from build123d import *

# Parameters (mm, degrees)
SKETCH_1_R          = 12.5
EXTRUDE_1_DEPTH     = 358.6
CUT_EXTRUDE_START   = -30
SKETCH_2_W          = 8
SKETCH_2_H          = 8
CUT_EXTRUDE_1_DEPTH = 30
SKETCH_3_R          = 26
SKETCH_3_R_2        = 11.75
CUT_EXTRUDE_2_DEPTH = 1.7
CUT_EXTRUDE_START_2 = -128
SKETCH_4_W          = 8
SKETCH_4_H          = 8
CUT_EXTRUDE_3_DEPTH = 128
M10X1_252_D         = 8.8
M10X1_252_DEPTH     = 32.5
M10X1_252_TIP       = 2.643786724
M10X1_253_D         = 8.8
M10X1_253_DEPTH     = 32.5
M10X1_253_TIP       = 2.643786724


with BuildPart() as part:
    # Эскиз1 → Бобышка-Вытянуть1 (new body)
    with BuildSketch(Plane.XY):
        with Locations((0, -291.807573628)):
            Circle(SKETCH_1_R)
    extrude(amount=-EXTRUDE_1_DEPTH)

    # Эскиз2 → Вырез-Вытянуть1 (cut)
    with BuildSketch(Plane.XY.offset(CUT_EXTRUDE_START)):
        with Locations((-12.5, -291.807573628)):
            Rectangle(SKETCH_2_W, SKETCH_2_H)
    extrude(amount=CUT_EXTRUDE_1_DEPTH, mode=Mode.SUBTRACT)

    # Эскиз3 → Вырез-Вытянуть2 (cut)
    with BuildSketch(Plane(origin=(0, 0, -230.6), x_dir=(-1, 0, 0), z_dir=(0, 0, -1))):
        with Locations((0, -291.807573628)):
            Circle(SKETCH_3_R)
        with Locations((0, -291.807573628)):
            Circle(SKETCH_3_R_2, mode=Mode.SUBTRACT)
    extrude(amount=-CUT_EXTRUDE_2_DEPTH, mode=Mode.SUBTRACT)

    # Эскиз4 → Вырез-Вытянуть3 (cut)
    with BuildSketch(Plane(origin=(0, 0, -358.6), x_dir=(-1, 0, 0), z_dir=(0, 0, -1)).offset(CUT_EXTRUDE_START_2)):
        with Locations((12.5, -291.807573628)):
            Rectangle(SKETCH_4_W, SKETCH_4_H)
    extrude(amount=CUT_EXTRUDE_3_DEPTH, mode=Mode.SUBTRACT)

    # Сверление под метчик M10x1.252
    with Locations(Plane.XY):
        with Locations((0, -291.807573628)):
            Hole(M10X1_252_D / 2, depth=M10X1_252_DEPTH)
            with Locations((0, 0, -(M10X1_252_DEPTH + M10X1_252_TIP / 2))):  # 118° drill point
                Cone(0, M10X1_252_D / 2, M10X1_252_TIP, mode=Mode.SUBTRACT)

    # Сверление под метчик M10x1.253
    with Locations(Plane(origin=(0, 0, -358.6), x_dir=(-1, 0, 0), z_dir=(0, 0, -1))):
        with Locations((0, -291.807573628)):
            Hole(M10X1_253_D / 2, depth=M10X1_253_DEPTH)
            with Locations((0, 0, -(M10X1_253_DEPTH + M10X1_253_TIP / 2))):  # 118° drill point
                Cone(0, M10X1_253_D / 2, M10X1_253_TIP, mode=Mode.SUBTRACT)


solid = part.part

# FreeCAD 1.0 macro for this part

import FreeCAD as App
import Part
import Sketcher
from FreeCAD import Vector
Q = App.Units.Quantity


def add_polygon(sketch, points):
    """Adds a closed chain of lines whose ends are joined by coincident constraints."""
    first, n = sketch.GeometryCount, len(points)
    for a, b in zip(points, points[1:] + points[:1]):
        sketch.addGeometry(Part.LineSegment(App.Vector(*a, 0), App.Vector(*b, 0)), False)
    for i in range(n):
        sketch.addConstraint(Sketcher.Constraint("Coincident", first + i, 2, first + (i + 1) % n, 1))

doc = App.newDocument("Part")
body = doc.addObject("PartDesign::Body", "Body")

# Sketch on XY plane
sketch1 = body.newObject("Sketcher::SketchObject", "Sketch")
sketch1.AttachmentSupport = (doc.getObject("XY_Plane"), [""])
sketch1.MapMode = "FlatFace"
sketch1.addGeometry(Part.Circle(Vector(0, -292, 0), Vector(0, 0, 1), 12), False)
sketch1.addConstraint([
    Sketcher.Constraint("PointOnObject", 0, 3, -2),
    Sketcher.Constraint("Diameter", 0, Q("25 mm")),
    Sketcher.Constraint("DistanceY", 0, 3, -1, 1, Q("291.807574 mm")),
])
pad1 = body.newObject("PartDesign::Pad", "Pad")
pad1.Profile = sketch1
pad1.Length = 358.6
pad1.Reversed = True

# Sketch on XY plane
sketch2 = body.newObject("Sketcher::SketchObject", "Sketch001")
sketch2.AttachmentSupport = (doc.getObject("XY_Plane"), [""])
sketch2.MapMode = "FlatFace"
sketch2.AttachmentOffset = App.Placement(Vector(0, 0, -30), App.Rotation())
add_polygon(sketch2, [(-16, -288), (-16, -296), (-8, -296), (-8, -288)])  # lines 0-3
sketch2.addConstraint([
    Sketcher.Constraint("Vertical", 0),
    Sketcher.Constraint("Horizontal", 1),
    Sketcher.Constraint("Vertical", 2),
    Sketcher.Constraint("Horizontal", 3),
    Sketcher.Constraint("Equal", 3, 0),
    Sketcher.Constraint("DistanceX", 1, 1, 1, 2, Q("8 mm")),
    Sketcher.Constraint("DistanceX", 0, 2, -1, 1, Q("16.5 mm")),
    Sketcher.Constraint("DistanceY", 0, 2, -1, 1, Q("295.807574 mm")),
])
pocket1 = body.newObject("PartDesign::Pocket", "Pocket")
pocket1.Profile = sketch2
pocket1.Length = 30
pocket1.Reversed = True

# Sketch on XY plane
sketch3 = body.newObject("Sketcher::SketchObject", "Sketch002")
sketch3.AttachmentSupport = (doc.getObject("XY_Plane"), [""])
sketch3.MapMode = "FlatFace"
sketch3.AttachmentOffset = App.Placement(Vector(0, 0, -230.6), App.Rotation())
sketch3.addGeometry([
    Part.Circle(Vector(0, -292, 0), Vector(0, 0, 1), 26),
    Part.Circle(Vector(0, -292, 0), Vector(0, 0, 1), 12),
], False)
sketch3.addConstraint([
    Sketcher.Constraint("Coincident", 1, 3, 0, 3),
    Sketcher.Constraint("PointOnObject", 0, 3, -2),
    Sketcher.Constraint("Diameter", 0, Q("52 mm")),
    Sketcher.Constraint("Diameter", 1, Q("23.5 mm")),
    Sketcher.Constraint("DistanceY", 0, 3, -1, 1, Q("291.807574 mm")),
])
pocket2 = body.newObject("PartDesign::Pocket", "Pocket001")
pocket2.Profile = sketch3
pocket2.Length = 1.7
pocket2.Reversed = True

# Sketch on XY plane
sketch4 = body.newObject("Sketcher::SketchObject", "Sketch003")
sketch4.AttachmentSupport = (doc.getObject("XY_Plane"), [""])
sketch4.MapMode = "FlatFace"
sketch4.AttachmentOffset = App.Placement(Vector(0, 0, -230.6), App.Rotation())
add_polygon(sketch4, [(-8, -288), (-8, -296), (-16, -296), (-16, -288)])  # lines 0-3
sketch4.addConstraint([
    Sketcher.Constraint("Vertical", 0),
    Sketcher.Constraint("Horizontal", 1),
    Sketcher.Constraint("Vertical", 2),
    Sketcher.Constraint("Horizontal", 3),
    Sketcher.Constraint("Equal", 3, 0),
    Sketcher.Constraint("DistanceX", 1, 2, 1, 1, Q("8 mm")),
    Sketcher.Constraint("DistanceX", 0, 2, -1, 1, Q("8.5 mm")),
    Sketcher.Constraint("DistanceY", 0, 2, -1, 1, Q("295.807574 mm")),
])
pocket3 = body.newObject("PartDesign::Pocket", "Pocket002")
pocket3.Profile = sketch4
pocket3.Length = 128

# Sketch on XY plane
sketch5 = body.newObject("Sketcher::SketchObject", "Sketch004")
sketch5.AttachmentSupport = (doc.getObject("XY_Plane"), [""])
sketch5.MapMode = "FlatFace"
sketch5.addGeometry(Part.Circle(Vector(0, -291.8, 0), Vector(0, 0, 1), 4.4), False)
sketch5.addConstraint([
    Sketcher.Constraint("PointOnObject", 0, 3, -2),
    Sketcher.Constraint("Diameter", 0, Q("8.8 mm")),
    Sketcher.Constraint("DistanceY", 0, 3, -1, 1, Q("291.807574 mm")),
])
doc.recompute()
hole = body.newObject("PartDesign::Hole", "Hole")
hole.Profile = sketch5
hole.ThreadType = "None"
hole.Diameter = 8.8
hole.DepthType = "Dimension"
hole.Depth = 32.5
hole.DrillPoint = "Angled"
hole.DrillPointAngle = 118

# Sketch on XY plane
sketch6 = body.newObject("Sketcher::SketchObject", "Sketch005")
sketch6.AttachmentSupport = (doc.getObject("XY_Plane"), [""])
sketch6.MapMode = "FlatFace"
sketch6.AttachmentOffset = App.Placement(Vector(0, 0, -358.6), App.Rotation())
sketch6.addGeometry(Part.Circle(Vector(0, -291.8, 0), Vector(0, 0, 1), 4.4), False)
sketch6.addConstraint([
    Sketcher.Constraint("PointOnObject", 0, 3, -2),
    Sketcher.Constraint("Diameter", 0, Q("8.8 mm")),
    Sketcher.Constraint("DistanceY", 0, 3, -1, 1, Q("291.807574 mm")),
])
doc.recompute()
hole2 = body.newObject("PartDesign::Hole", "Hole001")
hole2.Profile = sketch6
hole2.ThreadType = "None"
hole2.Diameter = 8.8
hole2.DepthType = "Dimension"
hole2.Depth = 32.5
hole2.DrillPoint = "Angled"
hole2.DrillPointAngle = 118
hole2.Reversed = True

doc.recompute()
